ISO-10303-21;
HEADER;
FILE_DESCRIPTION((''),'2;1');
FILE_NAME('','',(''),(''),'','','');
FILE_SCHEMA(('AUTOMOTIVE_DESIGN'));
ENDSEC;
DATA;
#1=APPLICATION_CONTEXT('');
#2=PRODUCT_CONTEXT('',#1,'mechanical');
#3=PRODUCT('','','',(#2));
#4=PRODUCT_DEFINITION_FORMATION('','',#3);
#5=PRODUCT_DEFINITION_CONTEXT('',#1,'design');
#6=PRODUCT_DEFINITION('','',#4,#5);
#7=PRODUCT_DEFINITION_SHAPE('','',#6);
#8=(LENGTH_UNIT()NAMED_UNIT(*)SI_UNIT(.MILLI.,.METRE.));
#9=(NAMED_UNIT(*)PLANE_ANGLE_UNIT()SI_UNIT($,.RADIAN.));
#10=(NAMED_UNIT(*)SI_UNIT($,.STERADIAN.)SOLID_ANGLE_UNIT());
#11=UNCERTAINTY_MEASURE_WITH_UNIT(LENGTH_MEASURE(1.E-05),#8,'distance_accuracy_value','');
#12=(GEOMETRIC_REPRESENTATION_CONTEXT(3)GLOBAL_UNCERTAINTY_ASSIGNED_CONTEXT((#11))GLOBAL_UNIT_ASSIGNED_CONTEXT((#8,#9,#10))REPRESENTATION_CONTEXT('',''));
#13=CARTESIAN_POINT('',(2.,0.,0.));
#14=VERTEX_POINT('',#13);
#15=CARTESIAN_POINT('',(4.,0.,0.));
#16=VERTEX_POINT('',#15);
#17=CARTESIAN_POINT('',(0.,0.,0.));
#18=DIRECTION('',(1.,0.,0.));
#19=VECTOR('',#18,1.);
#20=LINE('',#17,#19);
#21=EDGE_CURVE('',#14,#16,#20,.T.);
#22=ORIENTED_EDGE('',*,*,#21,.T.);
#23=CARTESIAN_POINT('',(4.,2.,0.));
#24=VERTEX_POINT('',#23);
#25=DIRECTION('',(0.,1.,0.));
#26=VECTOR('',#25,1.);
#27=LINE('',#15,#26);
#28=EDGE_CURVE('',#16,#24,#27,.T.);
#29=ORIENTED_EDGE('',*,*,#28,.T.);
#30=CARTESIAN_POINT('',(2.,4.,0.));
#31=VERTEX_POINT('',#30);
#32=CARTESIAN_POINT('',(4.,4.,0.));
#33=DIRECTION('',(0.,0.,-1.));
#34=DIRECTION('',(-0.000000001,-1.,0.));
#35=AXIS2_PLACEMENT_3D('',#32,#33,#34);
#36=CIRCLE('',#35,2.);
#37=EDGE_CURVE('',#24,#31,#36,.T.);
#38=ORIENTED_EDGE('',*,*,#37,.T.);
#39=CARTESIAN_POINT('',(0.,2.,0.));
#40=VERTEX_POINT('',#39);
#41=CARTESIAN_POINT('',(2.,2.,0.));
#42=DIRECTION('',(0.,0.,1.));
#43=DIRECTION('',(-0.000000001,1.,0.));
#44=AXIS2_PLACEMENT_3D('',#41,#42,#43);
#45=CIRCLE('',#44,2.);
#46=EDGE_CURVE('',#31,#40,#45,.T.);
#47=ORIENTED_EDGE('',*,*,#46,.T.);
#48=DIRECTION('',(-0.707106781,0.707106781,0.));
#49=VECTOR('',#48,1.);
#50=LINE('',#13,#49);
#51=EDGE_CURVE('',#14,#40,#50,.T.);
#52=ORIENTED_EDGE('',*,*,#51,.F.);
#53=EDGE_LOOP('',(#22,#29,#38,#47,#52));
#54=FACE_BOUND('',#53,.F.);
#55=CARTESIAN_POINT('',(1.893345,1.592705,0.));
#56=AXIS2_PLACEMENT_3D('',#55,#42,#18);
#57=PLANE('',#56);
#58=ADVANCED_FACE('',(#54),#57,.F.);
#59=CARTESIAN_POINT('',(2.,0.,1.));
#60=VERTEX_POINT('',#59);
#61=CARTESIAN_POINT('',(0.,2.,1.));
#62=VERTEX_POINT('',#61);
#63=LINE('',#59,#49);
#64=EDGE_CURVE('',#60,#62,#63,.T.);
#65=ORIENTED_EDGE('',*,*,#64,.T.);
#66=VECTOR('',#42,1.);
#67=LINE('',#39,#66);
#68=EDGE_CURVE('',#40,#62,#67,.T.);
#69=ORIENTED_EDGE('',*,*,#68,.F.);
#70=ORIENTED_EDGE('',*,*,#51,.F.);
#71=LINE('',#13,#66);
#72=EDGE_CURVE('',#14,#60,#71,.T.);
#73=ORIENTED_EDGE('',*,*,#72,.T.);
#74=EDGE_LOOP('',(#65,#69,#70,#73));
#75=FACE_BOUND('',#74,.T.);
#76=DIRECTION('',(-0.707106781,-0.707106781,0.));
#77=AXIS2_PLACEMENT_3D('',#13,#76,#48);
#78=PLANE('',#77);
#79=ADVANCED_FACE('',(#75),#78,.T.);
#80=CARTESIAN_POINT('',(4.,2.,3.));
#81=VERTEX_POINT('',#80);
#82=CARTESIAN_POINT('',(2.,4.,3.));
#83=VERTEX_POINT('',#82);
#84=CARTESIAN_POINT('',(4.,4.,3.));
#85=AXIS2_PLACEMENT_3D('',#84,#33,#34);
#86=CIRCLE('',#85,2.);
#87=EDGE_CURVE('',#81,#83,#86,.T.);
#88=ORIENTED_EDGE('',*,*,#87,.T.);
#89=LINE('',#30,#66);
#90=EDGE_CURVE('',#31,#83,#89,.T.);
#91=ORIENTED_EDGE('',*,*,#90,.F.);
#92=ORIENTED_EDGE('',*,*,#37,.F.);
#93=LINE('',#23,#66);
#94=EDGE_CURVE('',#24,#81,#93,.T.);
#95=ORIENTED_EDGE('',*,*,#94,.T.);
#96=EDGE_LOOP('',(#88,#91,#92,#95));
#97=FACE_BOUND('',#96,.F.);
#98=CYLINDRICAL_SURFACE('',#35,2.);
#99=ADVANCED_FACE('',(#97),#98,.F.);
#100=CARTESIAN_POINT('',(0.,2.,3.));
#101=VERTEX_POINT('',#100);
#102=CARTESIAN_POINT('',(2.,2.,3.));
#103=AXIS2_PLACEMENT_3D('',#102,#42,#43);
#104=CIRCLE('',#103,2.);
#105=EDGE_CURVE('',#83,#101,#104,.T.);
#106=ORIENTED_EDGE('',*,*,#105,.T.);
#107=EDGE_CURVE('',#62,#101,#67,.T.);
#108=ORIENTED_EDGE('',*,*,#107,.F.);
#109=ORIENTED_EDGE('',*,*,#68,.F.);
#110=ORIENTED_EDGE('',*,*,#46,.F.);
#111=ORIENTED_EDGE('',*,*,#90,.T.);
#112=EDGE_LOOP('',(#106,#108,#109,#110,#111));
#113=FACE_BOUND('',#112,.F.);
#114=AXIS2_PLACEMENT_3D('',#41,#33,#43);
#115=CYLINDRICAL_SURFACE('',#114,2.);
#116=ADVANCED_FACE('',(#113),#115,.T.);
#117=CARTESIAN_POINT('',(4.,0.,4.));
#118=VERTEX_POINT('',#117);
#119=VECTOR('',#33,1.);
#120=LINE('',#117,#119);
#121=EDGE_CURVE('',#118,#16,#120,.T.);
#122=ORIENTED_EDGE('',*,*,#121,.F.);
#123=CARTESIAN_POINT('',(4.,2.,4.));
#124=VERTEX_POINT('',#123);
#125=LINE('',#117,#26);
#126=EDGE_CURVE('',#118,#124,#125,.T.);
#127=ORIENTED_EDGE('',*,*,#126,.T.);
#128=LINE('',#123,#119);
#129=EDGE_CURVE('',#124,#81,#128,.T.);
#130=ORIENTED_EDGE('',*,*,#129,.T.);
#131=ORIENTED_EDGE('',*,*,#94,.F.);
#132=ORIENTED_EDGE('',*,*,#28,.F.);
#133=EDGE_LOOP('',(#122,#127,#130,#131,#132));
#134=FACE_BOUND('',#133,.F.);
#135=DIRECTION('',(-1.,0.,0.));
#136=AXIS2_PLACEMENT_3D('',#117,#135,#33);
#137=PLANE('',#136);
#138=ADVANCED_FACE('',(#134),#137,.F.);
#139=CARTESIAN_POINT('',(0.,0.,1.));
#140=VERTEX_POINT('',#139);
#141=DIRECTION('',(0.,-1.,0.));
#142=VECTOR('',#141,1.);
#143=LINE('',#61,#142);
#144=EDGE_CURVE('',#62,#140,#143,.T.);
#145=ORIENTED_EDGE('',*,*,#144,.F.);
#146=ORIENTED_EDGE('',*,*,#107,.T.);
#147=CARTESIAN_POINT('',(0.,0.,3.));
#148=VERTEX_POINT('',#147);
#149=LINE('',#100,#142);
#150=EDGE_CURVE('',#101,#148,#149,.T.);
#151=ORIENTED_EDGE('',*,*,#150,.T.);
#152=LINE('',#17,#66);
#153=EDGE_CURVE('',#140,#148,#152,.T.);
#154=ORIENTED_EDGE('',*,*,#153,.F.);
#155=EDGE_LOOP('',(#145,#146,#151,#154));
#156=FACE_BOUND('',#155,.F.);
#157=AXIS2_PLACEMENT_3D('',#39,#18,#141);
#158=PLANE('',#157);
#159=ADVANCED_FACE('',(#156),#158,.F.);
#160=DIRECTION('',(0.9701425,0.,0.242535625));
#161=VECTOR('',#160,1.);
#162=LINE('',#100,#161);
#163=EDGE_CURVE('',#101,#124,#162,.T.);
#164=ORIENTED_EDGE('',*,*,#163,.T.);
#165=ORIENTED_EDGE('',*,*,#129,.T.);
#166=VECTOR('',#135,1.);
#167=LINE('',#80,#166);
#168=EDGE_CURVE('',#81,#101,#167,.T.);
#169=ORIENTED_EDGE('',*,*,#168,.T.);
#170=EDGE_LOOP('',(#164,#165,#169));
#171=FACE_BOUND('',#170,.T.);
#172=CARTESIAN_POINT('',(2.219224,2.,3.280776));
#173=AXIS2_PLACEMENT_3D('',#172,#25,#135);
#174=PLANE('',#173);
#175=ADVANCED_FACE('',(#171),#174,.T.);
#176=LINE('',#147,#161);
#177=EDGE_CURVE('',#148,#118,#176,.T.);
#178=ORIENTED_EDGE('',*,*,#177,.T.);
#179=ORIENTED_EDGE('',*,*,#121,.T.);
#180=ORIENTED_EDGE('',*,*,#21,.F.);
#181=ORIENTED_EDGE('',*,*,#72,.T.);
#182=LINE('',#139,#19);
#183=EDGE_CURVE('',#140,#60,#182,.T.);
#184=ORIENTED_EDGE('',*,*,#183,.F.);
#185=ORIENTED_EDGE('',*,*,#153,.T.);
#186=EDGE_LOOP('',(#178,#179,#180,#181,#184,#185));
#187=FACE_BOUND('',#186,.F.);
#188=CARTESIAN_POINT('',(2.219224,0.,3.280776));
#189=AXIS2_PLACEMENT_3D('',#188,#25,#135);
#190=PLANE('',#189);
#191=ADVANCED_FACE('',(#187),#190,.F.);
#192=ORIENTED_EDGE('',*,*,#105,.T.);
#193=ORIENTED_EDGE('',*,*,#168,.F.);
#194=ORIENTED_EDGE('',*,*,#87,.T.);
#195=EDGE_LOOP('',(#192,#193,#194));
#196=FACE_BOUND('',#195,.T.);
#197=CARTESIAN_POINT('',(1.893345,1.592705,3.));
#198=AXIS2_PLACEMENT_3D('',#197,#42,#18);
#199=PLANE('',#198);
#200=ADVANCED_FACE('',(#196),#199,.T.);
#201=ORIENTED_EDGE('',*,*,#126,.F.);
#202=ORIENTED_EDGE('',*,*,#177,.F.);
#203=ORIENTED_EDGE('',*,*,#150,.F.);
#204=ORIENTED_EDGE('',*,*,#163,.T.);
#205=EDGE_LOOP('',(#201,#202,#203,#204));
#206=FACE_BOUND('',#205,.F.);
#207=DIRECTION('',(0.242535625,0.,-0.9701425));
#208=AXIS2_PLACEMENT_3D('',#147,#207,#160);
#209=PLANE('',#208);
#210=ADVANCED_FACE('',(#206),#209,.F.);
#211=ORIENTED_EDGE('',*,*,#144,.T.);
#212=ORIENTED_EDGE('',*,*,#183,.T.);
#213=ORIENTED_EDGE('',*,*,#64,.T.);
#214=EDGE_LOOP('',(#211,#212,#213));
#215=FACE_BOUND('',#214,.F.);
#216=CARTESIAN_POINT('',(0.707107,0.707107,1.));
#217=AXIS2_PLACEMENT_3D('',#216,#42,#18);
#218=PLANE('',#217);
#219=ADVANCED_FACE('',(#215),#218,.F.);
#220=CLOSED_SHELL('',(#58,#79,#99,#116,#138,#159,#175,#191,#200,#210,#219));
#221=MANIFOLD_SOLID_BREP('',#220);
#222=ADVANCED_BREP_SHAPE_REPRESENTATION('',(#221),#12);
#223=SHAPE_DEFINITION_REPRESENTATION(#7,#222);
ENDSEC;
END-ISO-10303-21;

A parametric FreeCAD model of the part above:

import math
import FreeCAD as App
import Part
import Sketcher

V = App.Vector


def add_polygon(sketch, points):
    """Adds a closed chain of lines whose ends are joined by coincident constraints."""
    first, n = sketch.GeometryCount, len(points)
    for a, b in zip(points, points[1:] + points[:1]):
        sketch.addGeometry(Part.LineSegment(App.Vector(*a, 0), App.Vector(*b, 0)), False)
    for i in range(n):
        sketch.addConstraint(Sketcher.Constraint("Coincident", first + i, 2, first + (i + 1) % n, 1))

doc = App.newDocument("Part")
params = doc.addObject("Spreadsheet::Sheet", "Params")
for row, (alias, value) in enumerate([
    ("sketch1_radius", "2 mm"),
    ("sketch1_height", "2 mm"),
    ("pad1_length", "3 mm"),
    ("sketch2_width", "4 mm"),
    ("sketch2_height", "1 mm"),
    ("pad2_length", "2 mm"),
    ("sketch3_width", "2 mm"),
    ("pocket1_length", "1 mm"),
], start=1):
    params.set(f"A{row}", alias)
    params.set(f"B{row}", "=" + value)
    params.setAlias(f"B{row}", alias)

body = doc.addObject("PartDesign::Body", "Body")

sketch1 = doc.addObject("Sketcher::SketchObject", "Sketch")
body.addObject(sketch1)
sketch1.AttachmentSupport = (doc.XY_Plane, [""])
sketch1.MapMode = "FlatFace"
sketch1.addGeometry([
    Part.LineSegment(V(0, 0, 0), V(4, 0, 0)),
    Part.LineSegment(V(4, 0, 0), V(4, 2, 0)),
    Part.ArcOfCircle(Part.Circle(V(4, 4, 0), V(0, 0, 1), 2), math.radians(-180), math.radians(-90)),
    Part.ArcOfCircle(Part.Circle(V(2, 2, 0), V(0, 0, 1), 2), math.radians(90), math.radians(180)),
    Part.LineSegment(V(0, 2, 0), V(0, 0, 0)),
], False)
sketch1.addConstraint([
    Sketcher.Constraint("Coincident", 0, 2, 1, 1),
    Sketcher.Constraint("Coincident", 1, 2, 2, 2),
    Sketcher.Constraint("Coincident", 2, 1, 3, 1),
    Sketcher.Constraint("Tangent", 3, 2, 4, 1),
    Sketcher.Constraint("Coincident", 4, 2, 0, 1),
    Sketcher.Constraint("Horizontal", 0),
    Sketcher.Constraint("Vertical", 1),
    Sketcher.Constraint("Vertical", 4),
    Sketcher.Constraint("Coincident", 4, 2, -1, 1),
    Sketcher.Constraint("Equal", 2, 3),
    Sketcher.Constraint("Horizontal", 3, 3, 1, 2),
    Sketcher.Constraint("Vertical", 2, 3, 0, 2),
    Sketcher.Constraint("Vertical", 3, 3, 2, 1),
    Sketcher.Constraint("Radius", 2, 2.0),
    Sketcher.Constraint("DistanceY", 1, 1, 1, 2, 2.0),
])
sketch1.setExpression("Constraints[13]", "Params.sketch1_radius")
sketch1.setExpression("Constraints[14]", "Params.sketch1_height")
pad1 = doc.addObject("PartDesign::Pad", "Pad")
body.addObject(pad1)
pad1.Profile = sketch1
pad1.setExpression("Length", "Params.pad1_length")

sketch2 = doc.addObject("Sketcher::SketchObject", "Sketch001")
body.addObject(sketch2)
sketch2.AttachmentSupport = (doc.XZ_Plane, [""])
sketch2.MapMode = "FlatFace"
add_polygon(sketch2, [(4, 4), (0, 3), (4, 3)])
sketch2.addConstraint([
    Sketcher.Constraint("Horizontal", 1),
    Sketcher.Constraint("Vertical", 2),
    Sketcher.Constraint("PointOnObject", 0, 2, -2),
    Sketcher.Constraint("DistanceX", 1, 1, 1, 2, 4.0),
    Sketcher.Constraint("DistanceY", 2, 1, 2, 2, 1.0),
    Sketcher.Constraint("DistanceY", -1, 1, 0, 2, 3.0),
])
sketch2.setExpression("Constraints[6]", "Params.sketch2_width")
sketch2.setExpression("Constraints[7]", "Params.sketch2_height")
pad2 = doc.addObject("PartDesign::Pad", "Pad001")
body.addObject(pad2)
pad2.Profile = sketch2
pad2.setExpression("Length", "Params.pad2_length")
pad2.Reversed = True

sketch3 = doc.addObject("Sketcher::SketchObject", "Sketch002")
body.addObject(sketch3)
sketch3.AttachmentSupport = (doc.XY_Plane, [""])
sketch3.MapMode = "FlatFace"
add_polygon(sketch3, [(0, 2), (2, 0), (0, 0)])
sketch3.addConstraint([
    Sketcher.Constraint("Horizontal", 1),
    Sketcher.Constraint("Vertical", 2),
    Sketcher.Constraint("Coincident", 1, 2, -1, 1),
    Sketcher.Constraint("Equal", 1, 2),
    Sketcher.Constraint("DistanceX", 1, 2, 1, 1, 2.0),
])
sketch3.setExpression("Constraints[7]", "Params.sketch3_width")
pocket1 = doc.addObject("PartDesign::Pocket", "Pocket")
body.addObject(pocket1)
pocket1.Profile = sketch3
pocket1.setExpression("Length", "Params.pocket1_length")
pocket1.Reversed = True

doc.recompute()
